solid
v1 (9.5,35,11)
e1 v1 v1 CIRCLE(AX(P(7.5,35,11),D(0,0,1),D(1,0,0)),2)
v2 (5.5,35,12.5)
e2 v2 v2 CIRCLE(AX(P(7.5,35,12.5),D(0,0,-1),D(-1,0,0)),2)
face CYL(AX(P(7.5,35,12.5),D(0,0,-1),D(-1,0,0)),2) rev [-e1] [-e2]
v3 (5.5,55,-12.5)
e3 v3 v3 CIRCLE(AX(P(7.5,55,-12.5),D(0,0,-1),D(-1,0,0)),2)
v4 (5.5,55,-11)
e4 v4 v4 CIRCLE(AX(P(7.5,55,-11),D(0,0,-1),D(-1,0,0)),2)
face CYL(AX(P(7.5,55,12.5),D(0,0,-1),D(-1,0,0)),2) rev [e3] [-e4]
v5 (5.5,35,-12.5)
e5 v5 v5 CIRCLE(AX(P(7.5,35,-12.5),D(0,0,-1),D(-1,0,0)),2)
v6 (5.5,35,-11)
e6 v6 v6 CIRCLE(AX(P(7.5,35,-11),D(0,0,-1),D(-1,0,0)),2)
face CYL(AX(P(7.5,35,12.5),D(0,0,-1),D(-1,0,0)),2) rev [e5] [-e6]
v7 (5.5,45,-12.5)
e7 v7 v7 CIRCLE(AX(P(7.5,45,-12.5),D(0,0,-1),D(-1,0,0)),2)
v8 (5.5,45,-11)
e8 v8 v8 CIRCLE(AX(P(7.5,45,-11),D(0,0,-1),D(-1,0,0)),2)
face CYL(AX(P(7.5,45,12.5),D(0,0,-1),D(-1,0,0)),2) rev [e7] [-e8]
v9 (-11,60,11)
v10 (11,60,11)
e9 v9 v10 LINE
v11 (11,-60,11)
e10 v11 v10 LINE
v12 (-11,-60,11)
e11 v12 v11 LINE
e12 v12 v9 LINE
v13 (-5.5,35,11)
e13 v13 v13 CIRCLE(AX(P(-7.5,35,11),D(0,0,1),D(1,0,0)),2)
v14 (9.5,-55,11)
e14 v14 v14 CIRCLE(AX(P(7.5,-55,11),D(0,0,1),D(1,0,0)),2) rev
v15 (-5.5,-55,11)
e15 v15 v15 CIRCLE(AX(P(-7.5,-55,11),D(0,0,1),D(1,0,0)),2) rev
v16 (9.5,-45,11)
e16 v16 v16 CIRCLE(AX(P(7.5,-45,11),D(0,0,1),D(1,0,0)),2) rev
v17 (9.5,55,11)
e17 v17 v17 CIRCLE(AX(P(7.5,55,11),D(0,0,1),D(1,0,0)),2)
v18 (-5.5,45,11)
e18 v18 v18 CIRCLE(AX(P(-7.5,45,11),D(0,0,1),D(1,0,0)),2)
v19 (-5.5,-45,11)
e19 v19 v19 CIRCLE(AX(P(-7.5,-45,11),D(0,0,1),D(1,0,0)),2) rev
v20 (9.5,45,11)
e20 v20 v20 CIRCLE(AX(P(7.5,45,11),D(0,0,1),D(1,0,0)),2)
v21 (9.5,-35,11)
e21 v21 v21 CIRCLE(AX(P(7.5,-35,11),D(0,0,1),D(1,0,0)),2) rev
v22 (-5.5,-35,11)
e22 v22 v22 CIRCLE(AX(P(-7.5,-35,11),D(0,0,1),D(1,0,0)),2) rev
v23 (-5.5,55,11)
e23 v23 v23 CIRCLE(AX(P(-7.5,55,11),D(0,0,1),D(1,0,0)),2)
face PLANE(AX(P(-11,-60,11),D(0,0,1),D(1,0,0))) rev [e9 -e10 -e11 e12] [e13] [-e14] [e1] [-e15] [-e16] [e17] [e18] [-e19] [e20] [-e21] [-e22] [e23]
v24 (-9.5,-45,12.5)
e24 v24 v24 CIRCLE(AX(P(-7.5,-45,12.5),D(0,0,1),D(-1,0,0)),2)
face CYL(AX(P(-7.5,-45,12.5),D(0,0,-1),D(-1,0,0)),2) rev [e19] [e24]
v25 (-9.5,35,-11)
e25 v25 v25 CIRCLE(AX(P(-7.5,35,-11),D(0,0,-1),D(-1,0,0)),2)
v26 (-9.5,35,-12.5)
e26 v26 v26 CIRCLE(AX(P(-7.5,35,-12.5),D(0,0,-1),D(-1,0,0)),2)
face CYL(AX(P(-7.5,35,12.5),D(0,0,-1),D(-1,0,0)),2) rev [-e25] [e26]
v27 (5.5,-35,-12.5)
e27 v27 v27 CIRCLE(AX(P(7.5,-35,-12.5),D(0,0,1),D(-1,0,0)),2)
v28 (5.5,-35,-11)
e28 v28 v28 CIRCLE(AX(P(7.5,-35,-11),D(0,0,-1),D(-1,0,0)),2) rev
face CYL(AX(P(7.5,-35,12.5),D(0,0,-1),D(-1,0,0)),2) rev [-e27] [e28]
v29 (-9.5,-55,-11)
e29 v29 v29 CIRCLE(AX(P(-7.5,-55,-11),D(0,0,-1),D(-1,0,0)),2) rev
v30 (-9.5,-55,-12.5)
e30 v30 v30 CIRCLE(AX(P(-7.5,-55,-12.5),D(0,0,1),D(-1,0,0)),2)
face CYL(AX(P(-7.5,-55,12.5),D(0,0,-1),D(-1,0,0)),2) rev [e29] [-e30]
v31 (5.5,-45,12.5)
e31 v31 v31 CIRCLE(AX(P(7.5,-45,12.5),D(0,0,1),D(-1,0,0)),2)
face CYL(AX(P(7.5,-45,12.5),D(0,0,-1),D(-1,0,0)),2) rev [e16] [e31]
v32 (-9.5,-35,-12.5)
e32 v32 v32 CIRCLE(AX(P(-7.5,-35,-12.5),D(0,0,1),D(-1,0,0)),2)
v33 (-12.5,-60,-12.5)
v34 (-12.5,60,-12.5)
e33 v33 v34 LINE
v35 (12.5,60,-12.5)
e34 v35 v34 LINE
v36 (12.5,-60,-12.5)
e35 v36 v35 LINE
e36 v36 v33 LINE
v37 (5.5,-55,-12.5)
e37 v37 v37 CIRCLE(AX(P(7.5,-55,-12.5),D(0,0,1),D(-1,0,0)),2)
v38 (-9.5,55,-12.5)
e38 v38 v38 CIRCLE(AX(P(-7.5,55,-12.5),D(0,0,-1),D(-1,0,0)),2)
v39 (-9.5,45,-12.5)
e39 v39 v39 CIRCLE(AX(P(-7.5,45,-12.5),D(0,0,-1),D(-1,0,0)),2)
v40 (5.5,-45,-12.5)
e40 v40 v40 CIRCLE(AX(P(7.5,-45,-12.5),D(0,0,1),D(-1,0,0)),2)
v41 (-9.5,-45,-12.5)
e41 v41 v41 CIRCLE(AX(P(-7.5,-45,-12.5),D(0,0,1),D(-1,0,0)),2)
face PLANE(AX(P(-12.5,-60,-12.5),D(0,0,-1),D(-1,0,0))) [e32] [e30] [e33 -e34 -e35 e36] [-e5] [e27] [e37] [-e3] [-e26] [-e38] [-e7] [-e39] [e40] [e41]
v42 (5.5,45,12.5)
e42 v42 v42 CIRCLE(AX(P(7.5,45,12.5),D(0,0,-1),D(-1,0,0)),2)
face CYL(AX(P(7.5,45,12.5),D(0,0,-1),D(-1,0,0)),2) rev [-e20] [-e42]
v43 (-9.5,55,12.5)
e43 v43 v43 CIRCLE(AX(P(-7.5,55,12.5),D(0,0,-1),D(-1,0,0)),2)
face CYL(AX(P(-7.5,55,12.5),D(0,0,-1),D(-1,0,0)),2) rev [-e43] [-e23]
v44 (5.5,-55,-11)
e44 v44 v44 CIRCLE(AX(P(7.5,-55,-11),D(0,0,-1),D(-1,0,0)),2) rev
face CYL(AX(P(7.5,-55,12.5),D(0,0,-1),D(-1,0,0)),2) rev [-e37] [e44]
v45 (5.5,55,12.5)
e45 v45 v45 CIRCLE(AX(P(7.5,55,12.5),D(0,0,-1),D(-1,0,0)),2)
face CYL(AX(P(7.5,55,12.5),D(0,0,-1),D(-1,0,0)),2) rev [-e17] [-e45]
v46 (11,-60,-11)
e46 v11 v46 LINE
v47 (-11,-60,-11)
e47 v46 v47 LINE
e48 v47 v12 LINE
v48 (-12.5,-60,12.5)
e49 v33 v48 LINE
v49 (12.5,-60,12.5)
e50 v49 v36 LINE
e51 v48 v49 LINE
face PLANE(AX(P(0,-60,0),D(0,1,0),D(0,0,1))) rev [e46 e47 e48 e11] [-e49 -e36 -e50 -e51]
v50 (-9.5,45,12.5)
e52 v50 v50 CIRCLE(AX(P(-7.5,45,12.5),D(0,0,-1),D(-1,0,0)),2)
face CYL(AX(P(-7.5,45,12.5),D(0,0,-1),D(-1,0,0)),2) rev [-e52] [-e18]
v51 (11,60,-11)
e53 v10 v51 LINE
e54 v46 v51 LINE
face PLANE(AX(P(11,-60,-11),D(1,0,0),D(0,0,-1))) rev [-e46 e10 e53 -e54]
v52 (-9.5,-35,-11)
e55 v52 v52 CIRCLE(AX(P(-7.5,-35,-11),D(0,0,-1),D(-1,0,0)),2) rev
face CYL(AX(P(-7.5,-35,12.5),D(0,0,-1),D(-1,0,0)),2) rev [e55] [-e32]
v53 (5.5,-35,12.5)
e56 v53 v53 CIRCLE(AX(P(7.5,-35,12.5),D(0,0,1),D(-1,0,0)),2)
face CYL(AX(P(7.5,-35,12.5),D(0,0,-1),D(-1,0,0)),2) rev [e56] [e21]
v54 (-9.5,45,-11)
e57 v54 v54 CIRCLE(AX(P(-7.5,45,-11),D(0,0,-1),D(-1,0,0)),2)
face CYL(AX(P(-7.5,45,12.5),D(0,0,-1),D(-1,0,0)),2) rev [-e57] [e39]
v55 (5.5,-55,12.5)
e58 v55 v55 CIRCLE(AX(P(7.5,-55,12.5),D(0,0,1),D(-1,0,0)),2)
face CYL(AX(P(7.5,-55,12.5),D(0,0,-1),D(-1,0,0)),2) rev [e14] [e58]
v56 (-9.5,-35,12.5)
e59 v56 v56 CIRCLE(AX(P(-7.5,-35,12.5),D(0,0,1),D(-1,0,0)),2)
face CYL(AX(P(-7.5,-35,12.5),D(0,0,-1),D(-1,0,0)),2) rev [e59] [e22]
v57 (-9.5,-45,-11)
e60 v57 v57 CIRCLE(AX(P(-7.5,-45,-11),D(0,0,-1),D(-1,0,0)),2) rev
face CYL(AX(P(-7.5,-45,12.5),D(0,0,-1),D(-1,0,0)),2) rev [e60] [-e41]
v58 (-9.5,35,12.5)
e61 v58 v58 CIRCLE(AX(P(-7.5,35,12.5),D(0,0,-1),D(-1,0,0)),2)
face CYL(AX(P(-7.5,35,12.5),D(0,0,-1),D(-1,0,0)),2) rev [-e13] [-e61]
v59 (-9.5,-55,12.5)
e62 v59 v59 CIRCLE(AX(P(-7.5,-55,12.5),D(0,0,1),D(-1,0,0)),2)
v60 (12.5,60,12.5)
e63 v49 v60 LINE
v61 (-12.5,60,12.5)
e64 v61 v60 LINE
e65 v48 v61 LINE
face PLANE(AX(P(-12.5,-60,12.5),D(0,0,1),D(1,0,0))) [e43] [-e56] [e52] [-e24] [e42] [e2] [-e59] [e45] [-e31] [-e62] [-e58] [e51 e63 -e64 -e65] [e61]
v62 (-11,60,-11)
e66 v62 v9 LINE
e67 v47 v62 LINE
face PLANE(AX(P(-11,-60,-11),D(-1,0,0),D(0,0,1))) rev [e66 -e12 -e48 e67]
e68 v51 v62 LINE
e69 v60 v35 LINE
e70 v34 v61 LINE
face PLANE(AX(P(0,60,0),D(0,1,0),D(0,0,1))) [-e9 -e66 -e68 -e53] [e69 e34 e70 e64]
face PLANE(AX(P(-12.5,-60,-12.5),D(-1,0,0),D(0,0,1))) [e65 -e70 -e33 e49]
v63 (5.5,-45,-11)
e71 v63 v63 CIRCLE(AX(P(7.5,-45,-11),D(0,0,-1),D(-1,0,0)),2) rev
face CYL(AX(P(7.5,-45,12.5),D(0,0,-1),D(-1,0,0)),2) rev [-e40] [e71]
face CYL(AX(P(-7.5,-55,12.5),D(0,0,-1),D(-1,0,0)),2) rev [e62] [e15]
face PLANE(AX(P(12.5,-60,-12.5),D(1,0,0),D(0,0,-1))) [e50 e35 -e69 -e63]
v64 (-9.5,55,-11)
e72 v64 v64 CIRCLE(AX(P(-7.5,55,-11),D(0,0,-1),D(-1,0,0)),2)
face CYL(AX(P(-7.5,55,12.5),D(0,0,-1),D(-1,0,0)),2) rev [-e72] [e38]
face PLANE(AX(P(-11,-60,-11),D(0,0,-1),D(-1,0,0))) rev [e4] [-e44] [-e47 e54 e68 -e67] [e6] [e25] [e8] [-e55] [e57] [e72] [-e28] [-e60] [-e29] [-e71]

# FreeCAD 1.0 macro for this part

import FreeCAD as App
import Part
import Sketcher

V = App.Vector
Q = App.Units.Quantity


def add_polygon(sketch, points):
    """Adds a closed chain of lines whose ends are joined by coincident constraints."""
    first, n = sketch.GeometryCount, len(points)
    for a, b in zip(points, points[1:] + points[:1]):
        sketch.addGeometry(Part.LineSegment(App.Vector(*a, 0), App.Vector(*b, 0)), False)
    for i in range(n):
        sketch.addConstraint(Sketcher.Constraint("Coincident", first + i, 2, first + (i + 1) % n, 1))

doc = App.newDocument("Part")
params = doc.addObject("Spreadsheet::Sheet", "Params")
for row, (alias, value) in enumerate([
    ("sketch1_width", "25 mm"),
    ("sketch1_width2", "22 mm"),
    ("pad1_length", "60 mm"),
    ("pad1_length2", "60 mm"),
    ("sketch2_diameter", "4 mm"),
    ("pocket1_length", "25 mm"),
], start=1):
    params.set(f"A{row}", alias)
    params.set(f"B{row}", "=" + value)
    params.setAlias(f"B{row}", alias)

body = doc.addObject("PartDesign::Body", "Body")

sketch1 = doc.addObject("Sketcher::SketchObject", "Sketch")
body.addObject(sketch1)
sketch1.AttachmentSupport = (doc.XZ_Plane, [""])
sketch1.MapMode = "FlatFace"
add_polygon(sketch1, [(-12, -12), (-12, 12), (12, 12), (12, -12)])
add_polygon(sketch1, [(11, 11), (-11, 11), (-11, -11), (11, -11)])
sketch1.addConstraint([
    Sketcher.Constraint("Vertical", 0),
    Sketcher.Constraint("Horizontal", 1),
    Sketcher.Constraint("Vertical", 2),
    Sketcher.Constraint("Horizontal", 3),
    Sketcher.Constraint("Horizontal", 4),
    Sketcher.Constraint("Vertical", 5),
    Sketcher.Constraint("Horizontal", 6),
    Sketcher.Constraint("Vertical", 7),
    Sketcher.Constraint("Symmetric", 0, 2, 2, 2, -1, 1),
    Sketcher.Constraint("Symmetric", 4, 2, 6, 2, -1, 1),
    Sketcher.Constraint("Equal", 3, 0),
    Sketcher.Constraint("Equal", 6, 5),
    Sketcher.Constraint("DistanceX", 1, 1, 1, 2, Q("25 mm")),
    Sketcher.Constraint("DistanceX", 4, 2, 4, 1, Q("22 mm")),
])
sketch1.setExpression("Constraints[20]", "Params.sketch1_width")
sketch1.setExpression("Constraints[21]", "Params.sketch1_width2")
pad1 = doc.addObject("PartDesign::Pad", "Pad")
body.addObject(pad1)
pad1.Profile = sketch1
pad1.Type = "TwoLengths"
pad1.setExpression("Length", "Params.pad1_length")
pad1.setExpression("Length2", "Params.pad1_length2")
pad1.Reversed = True

sketch2 = doc.addObject("Sketcher::SketchObject", "Sketch001")
body.addObject(sketch2)
sketch2.AttachmentSupport = (doc.XY_Plane, [""])
sketch2.MapMode = "FlatFace"
sketch2.AttachmentOffset = App.Placement(V(0, 0, -12.5), App.Rotation())
sketch2.addGeometry([
    Part.Circle(V(-7.5, 55, 0), V(0, 0, 1), 2),
    Part.Circle(V(-7.5, 45, 0), V(0, 0, 1), 2),
    Part.Circle(V(7.5, 55, 0), V(0, 0, 1), 2),
    Part.Circle(V(7.5, 45, 0), V(0, 0, 1), 2),
    Part.Circle(V(-7.5, 35, 0), V(0, 0, 1), 2),
    Part.Circle(V(7.5, 35, 0), V(0, 0, 1), 2),
], False)
sketch2.addConstraint([
    Sketcher.Constraint("Equal", 0, 1),
    Sketcher.Constraint("Equal", 1, 2),
    Sketcher.Constraint("Equal", 2, 3),
    Sketcher.Constraint("Equal", 3, 4),
    Sketcher.Constraint("Equal", 4, 5),
    Sketcher.Constraint("Symmetric", 0, 3, 2, 3, -2),
    Sketcher.Constraint("Symmetric", 1, 3, 3, 3, -2),
    Sketcher.Constraint("Symmetric", 4, 3, 5, 3, -2),
    Sketcher.Constraint("Vertical", 0, 3, 1, 3),
    Sketcher.Constraint("Vertical", 1, 3, 4, 3),
    Sketcher.Constraint("Diameter", 0, Q("4 mm")),
    Sketcher.Constraint("DistanceY", -1, 1, 0, 3, Q("55 mm")),
    Sketcher.Constraint("DistanceY", -1, 1, 1, 3, Q("45 mm")),
    Sketcher.Constraint("DistanceY", -1, 1, 4, 3, Q("35 mm")),
    Sketcher.Constraint("DistanceX", 0, 3, 2, 3, Q("15 mm")),
])
sketch2.setExpression("Constraints[10]", "Params.sketch2_diameter")
pocket1 = doc.addObject("PartDesign::Pocket", "Pocket")
body.addObject(pocket1)
pocket1.Profile = sketch2
pocket1.setExpression("Length", "Params.pocket1_length")
pocket1.Reversed = True
doc.recompute()

mirrored = doc.addObject("PartDesign::Mirrored", "Mirrored")
body.addObject(mirrored)
mirrored.Originals = [pocket1]
mirrored.MirrorPlane = (doc.XZ_Plane, [""])
body.Tip = mirrored

doc.recompute()
